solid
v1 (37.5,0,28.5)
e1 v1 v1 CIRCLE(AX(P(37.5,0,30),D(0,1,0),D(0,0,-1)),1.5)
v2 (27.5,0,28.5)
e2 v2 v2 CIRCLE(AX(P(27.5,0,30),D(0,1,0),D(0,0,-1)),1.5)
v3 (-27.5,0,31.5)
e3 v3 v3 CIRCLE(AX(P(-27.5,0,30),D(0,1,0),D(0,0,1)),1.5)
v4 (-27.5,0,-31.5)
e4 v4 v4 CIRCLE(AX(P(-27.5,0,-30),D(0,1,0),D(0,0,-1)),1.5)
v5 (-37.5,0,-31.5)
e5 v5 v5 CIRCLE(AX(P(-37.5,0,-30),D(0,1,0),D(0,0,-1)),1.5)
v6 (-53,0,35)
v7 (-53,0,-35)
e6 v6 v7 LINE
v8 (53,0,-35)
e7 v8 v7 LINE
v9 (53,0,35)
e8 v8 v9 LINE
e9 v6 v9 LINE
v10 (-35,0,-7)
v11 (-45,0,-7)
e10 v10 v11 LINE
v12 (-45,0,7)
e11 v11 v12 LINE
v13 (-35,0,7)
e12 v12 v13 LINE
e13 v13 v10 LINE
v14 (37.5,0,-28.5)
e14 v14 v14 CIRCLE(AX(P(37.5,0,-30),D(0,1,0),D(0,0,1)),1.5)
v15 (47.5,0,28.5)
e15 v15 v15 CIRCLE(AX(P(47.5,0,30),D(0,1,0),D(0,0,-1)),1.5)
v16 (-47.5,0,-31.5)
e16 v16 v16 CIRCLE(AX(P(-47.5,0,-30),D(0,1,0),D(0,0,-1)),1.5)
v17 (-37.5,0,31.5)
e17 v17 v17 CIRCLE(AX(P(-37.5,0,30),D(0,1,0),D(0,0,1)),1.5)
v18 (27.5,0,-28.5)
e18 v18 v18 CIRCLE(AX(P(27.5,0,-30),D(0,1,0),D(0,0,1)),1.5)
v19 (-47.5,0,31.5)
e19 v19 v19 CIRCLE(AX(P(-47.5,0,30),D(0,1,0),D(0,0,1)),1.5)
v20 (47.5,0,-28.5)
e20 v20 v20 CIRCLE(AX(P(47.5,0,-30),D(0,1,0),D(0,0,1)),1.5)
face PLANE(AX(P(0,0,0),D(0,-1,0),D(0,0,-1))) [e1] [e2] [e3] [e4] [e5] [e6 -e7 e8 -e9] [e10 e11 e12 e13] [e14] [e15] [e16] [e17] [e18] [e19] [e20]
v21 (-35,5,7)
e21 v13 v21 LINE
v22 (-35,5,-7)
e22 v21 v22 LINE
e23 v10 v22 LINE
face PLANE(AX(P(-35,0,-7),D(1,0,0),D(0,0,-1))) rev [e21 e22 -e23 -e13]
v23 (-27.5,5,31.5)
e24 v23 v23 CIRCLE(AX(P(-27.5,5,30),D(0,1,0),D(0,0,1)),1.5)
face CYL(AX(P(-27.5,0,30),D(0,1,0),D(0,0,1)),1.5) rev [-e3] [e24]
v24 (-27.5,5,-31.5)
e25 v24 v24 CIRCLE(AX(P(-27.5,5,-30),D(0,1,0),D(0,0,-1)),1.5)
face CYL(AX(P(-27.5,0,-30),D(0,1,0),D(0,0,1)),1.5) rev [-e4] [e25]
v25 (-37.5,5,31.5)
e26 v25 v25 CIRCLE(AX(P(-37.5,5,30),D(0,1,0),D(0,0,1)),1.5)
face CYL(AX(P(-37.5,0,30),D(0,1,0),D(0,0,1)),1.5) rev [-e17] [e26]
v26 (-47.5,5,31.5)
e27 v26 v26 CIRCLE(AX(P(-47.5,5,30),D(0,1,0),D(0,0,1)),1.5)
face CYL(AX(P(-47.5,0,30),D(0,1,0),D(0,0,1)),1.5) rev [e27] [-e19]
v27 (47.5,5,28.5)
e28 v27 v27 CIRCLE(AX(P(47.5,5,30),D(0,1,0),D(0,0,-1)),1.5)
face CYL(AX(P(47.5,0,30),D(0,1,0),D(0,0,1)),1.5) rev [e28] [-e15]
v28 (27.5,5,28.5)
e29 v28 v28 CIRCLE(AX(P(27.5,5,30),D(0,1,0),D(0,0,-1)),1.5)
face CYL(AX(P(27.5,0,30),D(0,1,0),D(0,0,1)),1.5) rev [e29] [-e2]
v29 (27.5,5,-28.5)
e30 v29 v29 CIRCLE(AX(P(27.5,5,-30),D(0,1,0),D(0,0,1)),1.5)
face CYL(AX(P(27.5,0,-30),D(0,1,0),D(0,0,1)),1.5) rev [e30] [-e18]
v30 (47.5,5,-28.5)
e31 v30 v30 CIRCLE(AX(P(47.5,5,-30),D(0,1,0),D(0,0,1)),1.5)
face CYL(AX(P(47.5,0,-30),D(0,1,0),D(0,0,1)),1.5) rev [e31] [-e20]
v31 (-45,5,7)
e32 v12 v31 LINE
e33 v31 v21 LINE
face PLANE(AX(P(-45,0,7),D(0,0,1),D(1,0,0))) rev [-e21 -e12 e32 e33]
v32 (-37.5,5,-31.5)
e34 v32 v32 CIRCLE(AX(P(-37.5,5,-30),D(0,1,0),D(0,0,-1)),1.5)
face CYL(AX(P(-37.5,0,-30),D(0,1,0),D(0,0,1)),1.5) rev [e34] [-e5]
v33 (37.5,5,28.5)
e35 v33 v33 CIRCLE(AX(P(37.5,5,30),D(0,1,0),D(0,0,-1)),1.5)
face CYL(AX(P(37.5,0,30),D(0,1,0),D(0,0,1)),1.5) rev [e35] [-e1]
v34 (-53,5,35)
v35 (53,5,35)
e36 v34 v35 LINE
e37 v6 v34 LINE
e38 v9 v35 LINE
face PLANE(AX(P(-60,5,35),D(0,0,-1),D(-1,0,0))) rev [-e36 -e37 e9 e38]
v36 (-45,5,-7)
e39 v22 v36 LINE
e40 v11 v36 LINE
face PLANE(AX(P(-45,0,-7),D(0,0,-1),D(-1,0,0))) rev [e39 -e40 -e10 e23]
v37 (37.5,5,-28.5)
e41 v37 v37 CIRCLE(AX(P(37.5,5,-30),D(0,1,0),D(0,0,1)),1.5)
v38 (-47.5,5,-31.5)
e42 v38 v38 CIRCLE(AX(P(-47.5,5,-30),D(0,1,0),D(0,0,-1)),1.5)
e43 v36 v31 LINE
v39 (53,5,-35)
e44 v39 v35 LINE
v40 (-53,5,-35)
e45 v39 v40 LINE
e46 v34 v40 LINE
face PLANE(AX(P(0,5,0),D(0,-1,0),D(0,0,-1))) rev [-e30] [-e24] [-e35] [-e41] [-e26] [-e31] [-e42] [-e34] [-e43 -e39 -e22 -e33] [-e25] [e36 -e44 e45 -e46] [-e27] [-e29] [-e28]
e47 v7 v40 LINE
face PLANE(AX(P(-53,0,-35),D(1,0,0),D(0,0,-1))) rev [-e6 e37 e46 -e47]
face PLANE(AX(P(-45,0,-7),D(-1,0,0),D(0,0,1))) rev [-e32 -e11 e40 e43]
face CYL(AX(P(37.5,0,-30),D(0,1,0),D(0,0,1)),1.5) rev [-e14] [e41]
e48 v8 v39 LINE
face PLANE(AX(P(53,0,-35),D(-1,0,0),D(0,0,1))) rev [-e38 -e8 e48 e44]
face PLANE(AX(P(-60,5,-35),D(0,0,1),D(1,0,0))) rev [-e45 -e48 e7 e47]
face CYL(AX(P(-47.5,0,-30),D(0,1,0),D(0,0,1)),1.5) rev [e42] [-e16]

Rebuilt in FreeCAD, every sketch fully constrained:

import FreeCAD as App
import Part
import Sketcher

V = App.Vector
Q = App.Units.Quantity

doc = App.newDocument("Part")
body = doc.addObject("PartDesign::Body", "Body")

sketch1 = body.newObject("Sketcher::SketchObject", "Sketch")
sketch1.AttachmentSupport = (doc.getObject("XZ_Plane"), [""])
sketch1.MapMode = "FlatFace"
sketch1.addGeometry(Part.LineSegment(V(-60, -35, 0), V(-60, 35, 0)), False)
sketch1.addGeometry(Part.LineSegment(V(-60, 35, 0), V(60, 35, 0)), False)
sketch1.addGeometry(Part.LineSegment(V(60, 35, 0), V(60, -35, 0)), False)
sketch1.addGeometry(Part.LineSegment(V(60, -35, 0), V(-60, -35, 0)), False)
sketch1.addConstraint(Sketcher.Constraint("Coincident", 0, 2, 1, 1))
sketch1.addConstraint(Sketcher.Constraint("Coincident", 1, 2, 2, 1))
sketch1.addConstraint(Sketcher.Constraint("Coincident", 2, 2, 3, 1))
sketch1.addConstraint(Sketcher.Constraint("Coincident", 3, 2, 0, 1))
sketch1.addConstraint(Sketcher.Constraint("Vertical", 0))
sketch1.addConstraint(Sketcher.Constraint("Horizontal", 1))
sketch1.addConstraint(Sketcher.Constraint("Vertical", 2))
sketch1.addConstraint(Sketcher.Constraint("Horizontal", 3))
sketch1.addConstraint(Sketcher.Constraint("Symmetric", 0, 2, 2, 2, -1, 1))
sketch1.addConstraint(Sketcher.Constraint("DistanceX", 1, 1, 1, 2, Q("120 mm")))
sketch1.addConstraint(Sketcher.Constraint("DistanceY", 0, 1, 0, 2, Q("70 mm")))
pad1 = body.newObject("PartDesign::Pad", "Pad")
pad1.Profile = sketch1
pad1.Length = 5
pad1.Reversed = True

sketch2 = body.newObject("Sketcher::SketchObject", "Sketch001")
sketch2.AttachmentSupport = (doc.getObject("XZ_Plane"), [""])
sketch2.MapMode = "FlatFace"
sketch2.AttachmentOffset = App.Placement(V(0, 0, -5), App.Rotation())
sketch2.addGeometry(Part.LineSegment(V(-45, -7, 0), V(-45, 7, 0)), False)
sketch2.addGeometry(Part.LineSegment(V(-45, 7, 0), V(-35, 7, 0)), False)
sketch2.addGeometry(Part.LineSegment(V(-35, 7, 0), V(-35, -7, 0)), False)
sketch2.addGeometry(Part.LineSegment(V(-35, -7, 0), V(-45, -7, 0)), False)
sketch2.addConstraint(Sketcher.Constraint("Coincident", 0, 2, 1, 1))
sketch2.addConstraint(Sketcher.Constraint("Coincident", 1, 2, 2, 1))
sketch2.addConstraint(Sketcher.Constraint("Coincident", 2, 2, 3, 1))
sketch2.addConstraint(Sketcher.Constraint("Coincident", 3, 2, 0, 1))
sketch2.addConstraint(Sketcher.Constraint("Vertical", 0))
sketch2.addConstraint(Sketcher.Constraint("Horizontal", 1))
sketch2.addConstraint(Sketcher.Constraint("Vertical", 2))
sketch2.addConstraint(Sketcher.Constraint("Horizontal", 3))
sketch2.addConstraint(Sketcher.Constraint("DistanceX", 1, 1, 1, 2, Q("10 mm")))
sketch2.addConstraint(Sketcher.Constraint("DistanceY", 0, 1, 0, 2, Q("14 mm")))
sketch2.addConstraint(Sketcher.Constraint("DistanceX", 0, 2, -1, 1, Q("45 mm")))
sketch2.addConstraint(Sketcher.Constraint("DistanceY", -1, 1, 0, 2, Q("7 mm")))
pocket1 = body.newObject("PartDesign::Pocket", "Pocket")
pocket1.Profile = sketch2
pocket1.Type = "ThroughAll"
pocket1.Midplane = True

sketch3 = body.newObject("Sketcher::SketchObject", "Sketch002")
sketch3.AttachmentSupport = (doc.getObject("XZ_Plane"), [""])
sketch3.MapMode = "FlatFace"
sketch3.AttachmentOffset = App.Placement(V(0, 0, -5), App.Rotation())
sketch3.addGeometry(Part.LineSegment(V(53, -35, 0), V(53, 35, 0)), False)
sketch3.addGeometry(Part.LineSegment(V(53, 35, 0), V(60, 35, 0)), False)
sketch3.addGeometry(Part.LineSegment(V(60, 35, 0), V(60, -35, 0)), False)
sketch3.addGeometry(Part.LineSegment(V(60, -35, 0), V(53, -35, 0)), False)
sketch3.addGeometry(Part.LineSegment(V(-60, -35, 0), V(-60, 35, 0)), False)
sketch3.addGeometry(Part.LineSegment(V(-60, 35, 0), V(-53, 35, 0)), False)
sketch3.addGeometry(Part.LineSegment(V(-53, 35, 0), V(-53, -35, 0)), False)
sketch3.addGeometry(Part.LineSegment(V(-53, -35, 0), V(-60, -35, 0)), False)
sketch3.addConstraint(Sketcher.Constraint("Coincident", 0, 2, 1, 1))
sketch3.addConstraint(Sketcher.Constraint("Coincident", 1, 2, 2, 1))
sketch3.addConstraint(Sketcher.Constraint("Coincident", 2, 2, 3, 1))
sketch3.addConstraint(Sketcher.Constraint("Coincident", 3, 2, 0, 1))
sketch3.addConstraint(Sketcher.Constraint("Coincident", 4, 2, 5, 1))
sketch3.addConstraint(Sketcher.Constraint("Coincident", 5, 2, 6, 1))
sketch3.addConstraint(Sketcher.Constraint("Coincident", 6, 2, 7, 1))
sketch3.addConstraint(Sketcher.Constraint("Coincident", 7, 2, 4, 1))
sketch3.addConstraint(Sketcher.Constraint("Vertical", 0))
sketch3.addConstraint(Sketcher.Constraint("Horizontal", 1))
sketch3.addConstraint(Sketcher.Constraint("Vertical", 2))
sketch3.addConstraint(Sketcher.Constraint("Horizontal", 3))
sketch3.addConstraint(Sketcher.Constraint("Vertical", 4))
sketch3.addConstraint(Sketcher.Constraint("Horizontal", 5))
sketch3.addConstraint(Sketcher.Constraint("Vertical", 6))
sketch3.addConstraint(Sketcher.Constraint("Horizontal", 7))
sketch3.addConstraint(Sketcher.Constraint("Symmetric", 2, 2, 4, 2, -1, 1))
sketch3.addConstraint(Sketcher.Constraint("Symmetric", 0, 2, 6, 2, -1, 1))
sketch3.addConstraint(Sketcher.Constraint("Horizontal", 1, 2, 4, 2))
sketch3.addConstraint(Sketcher.Constraint("DistanceX", 1, 1, 1, 2, Q("7 mm")))
sketch3.addConstraint(Sketcher.Constraint("DistanceY", 0, 1, 0, 2, Q("70 mm")))
sketch3.addConstraint(Sketcher.Constraint("DistanceX", -1, 1, 0, 2, Q("53 mm")))
pocket2 = body.newObject("PartDesign::Pocket", "Pocket001")
pocket2.Profile = sketch3
pocket2.Type = "ThroughAll"
pocket2.Midplane = True

sketch4 = body.newObject("Sketcher::SketchObject", "Sketch003")
sketch4.AttachmentSupport = (doc.getObject("XZ_Plane"), [""])
sketch4.MapMode = "FlatFace"
sketch4.AttachmentOffset = App.Placement(V(0, 0, -5), App.Rotation())
sketch4.addGeometry(Part.Circle(V(-37.5, 30, 0), V(0, 0, 1), 1.5), False)
sketch4.addGeometry(Part.Circle(V(-27.5, 30, 0), V(0, 0, 1), 1.5), False)
sketch4.addGeometry(Part.Circle(V(-47.5, 30, 0), V(0, 0, 1), 1.5), False)
sketch4.addGeometry(Part.Circle(V(27.5, 30, 0), V(0, 0, 1), 1.5), False)
sketch4.addGeometry(Part.Circle(V(47.5, 30, 0), V(0, 0, 1), 1.5), False)
sketch4.addGeometry(Part.Circle(V(37.5, 30, 0), V(0, 0, 1), 1.5), False)
sketch4.addGeometry(Part.Circle(V(47.5, -30, 0), V(0, 0, 1), 1.5), False)
sketch4.addGeometry(Part.Circle(V(37.5, -30, 0), V(0, 0, 1), 1.5), False)
sketch4.addGeometry(Part.Circle(V(27.5, -30, 0), V(0, 0, 1), 1.5), False)
sketch4.addGeometry(Part.Circle(V(-27.5, -30, 0), V(0, 0, 1), 1.5), False)
sketch4.addGeometry(Part.Circle(V(-37.5, -30, 0), V(0, 0, 1), 1.5), False)
sketch4.addGeometry(Part.Circle(V(-47.5, -30, 0), V(0, 0, 1), 1.5), False)
sketch4.addConstraint(Sketcher.Constraint("Equal", 0, 1))
sketch4.addConstraint(Sketcher.Constraint("Equal", 1, 2))
sketch4.addConstraint(Sketcher.Constraint("Equal", 2, 3))
sketch4.addConstraint(Sketcher.Constraint("Equal", 3, 4))
sketch4.addConstraint(Sketcher.Constraint("Equal", 4, 5))
sketch4.addConstraint(Sketcher.Constraint("Equal", 5, 6))
sketch4.addConstraint(Sketcher.Constraint("Equal", 6, 7))
sketch4.addConstraint(Sketcher.Constraint("Equal", 7, 8))
sketch4.addConstraint(Sketcher.Constraint("Equal", 8, 9))
sketch4.addConstraint(Sketcher.Constraint("Equal", 9, 10))
sketch4.addConstraint(Sketcher.Constraint("Equal", 10, 11))
sketch4.addConstraint(Sketcher.Constraint("Symmetric", 2, 3, 6, 3, -1, 1))
sketch4.addConstraint(Sketcher.Constraint("Symmetric", 0, 3, 7, 3, -1, 1))
sketch4.addConstraint(Sketcher.Constraint("Symmetric", 1, 3, 8, 3, -1, 1))
sketch4.addConstraint(Sketcher.Constraint("Symmetric", 3, 3, 9, 3, -1, 1))
sketch4.addConstraint(Sketcher.Constraint("Symmetric", 5, 3, 10, 3, -1, 1))
sketch4.addConstraint(Sketcher.Constraint("Symmetric", 4, 3, 11, 3, -1, 1))
sketch4.addConstraint(Sketcher.Constraint("Symmetric", 1, 3, 3, 3, -2))
sketch4.addConstraint(Sketcher.Constraint("Symmetric", 2, 3, 4, 3, -2))
sketch4.addConstraint(Sketcher.Constraint("Symmetric", 0, 3, 5, 3, -2))
sketch4.addConstraint(Sketcher.Constraint("Horizontal", 0, 3, 1, 3))
sketch4.addConstraint(Sketcher.Constraint("Horizontal", 1, 3, 2, 3))
sketch4.addConstraint(Sketcher.Constraint("Diameter", 0, Q("3 mm")))
sketch4.addConstraint(Sketcher.Constraint("DistanceY", -1, 1, 0, 3, Q("30 mm")))
sketch4.addConstraint(Sketcher.Constraint("DistanceX", 0, 3, 1, 3, Q("10 mm")))
sketch4.addConstraint(Sketcher.Constraint("DistanceX", 2, 3, 0, 3, Q("10 mm")))
sketch4.addConstraint(Sketcher.Constraint("DistanceX", 1, 3, 3, 3, Q("55 mm")))
pocket3 = body.newObject("PartDesign::Pocket", "Pocket002")
pocket3.Profile = sketch4
pocket3.Type = "ThroughAll"
pocket3.Midplane = True

doc.recompute()
